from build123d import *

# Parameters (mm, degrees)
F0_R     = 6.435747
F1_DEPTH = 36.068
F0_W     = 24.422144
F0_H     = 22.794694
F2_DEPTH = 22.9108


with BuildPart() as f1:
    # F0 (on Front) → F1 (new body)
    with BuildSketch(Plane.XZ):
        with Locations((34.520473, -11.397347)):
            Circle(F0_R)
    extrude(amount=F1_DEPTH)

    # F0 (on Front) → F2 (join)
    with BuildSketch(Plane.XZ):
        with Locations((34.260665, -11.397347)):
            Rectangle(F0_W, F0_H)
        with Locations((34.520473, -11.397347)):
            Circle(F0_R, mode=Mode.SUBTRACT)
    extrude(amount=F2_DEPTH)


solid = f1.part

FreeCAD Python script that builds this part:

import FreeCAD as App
import Part
import Sketcher


def add_polygon(sketch, points):
    """Adds a closed chain of lines whose ends are joined by coincident constraints."""
    first, n = sketch.GeometryCount, len(points)
    for a, b in zip(points, points[1:] + points[:1]):
        sketch.addGeometry(Part.LineSegment(App.Vector(*a, 0), App.Vector(*b, 0)), False)
    for i in range(n):
        sketch.addConstraint(Sketcher.Constraint("Coincident", first + i, 2, first + (i + 1) % n, 1))

doc = App.newDocument("Part")
params = doc.addObject("Spreadsheet::Sheet", "Params")
for row, (alias, value) in enumerate([
    ("pad1_length", "1.42 in"),
    ("pad2_length", "0.902 in"),
], start=1):
    params.set(f"A{row}", alias)
    params.set(f"B{row}", "=" + value)
    params.setAlias(f"B{row}", alias)

body = doc.addObject("PartDesign::Body", "Body")

# Sketch on XZ plane
sketch1 = doc.addObject("Sketcher::SketchObject", "Sketch")
body.addObject(sketch1)
sketch1.AttachmentSupport = (doc.XZ_Plane, [""])
sketch1.MapMode = "FlatFace"
sketch1.addGeometry(Part.Circle(App.Vector(35, -11, 0), App.Vector(0, 0, 1), 6), False)
sketch1.addConstraint(Sketcher.Constraint("Diameter", 0, 12.871494))
sketch1.addConstraint(Sketcher.Constraint("DistanceX", -1, 1, 0, 3, 34.520473))
sketch1.addConstraint(Sketcher.Constraint("DistanceY", 0, 3, -1, 1, 11.397347))
pad1 = doc.addObject("PartDesign::Pad", "Pad")
body.addObject(pad1)
pad1.Profile = sketch1
pad1.setExpression("Length", "Params.pad1_length")

# Sketch on XZ plane
sketch2 = doc.addObject("Sketcher::SketchObject", "Sketch001")
body.addObject(sketch2)
sketch2.AttachmentSupport = (doc.XZ_Plane, [""])
sketch2.MapMode = "FlatFace"
add_polygon(sketch2, [(22, 0), (22, -23), (46, -23), (46, 0)])  # lines 0-3
sketch2.addGeometry(Part.Circle(App.Vector(35, -11, 0), App.Vector(0, 0, 1), 6), False)  # 4
sketch2.addConstraint(Sketcher.Constraint("Vertical", 0))
sketch2.addConstraint(Sketcher.Constraint("Horizontal", 1))
sketch2.addConstraint(Sketcher.Constraint("Vertical", 2))
sketch2.addConstraint(Sketcher.Constraint("Horizontal", 3))
sketch2.addConstraint(Sketcher.Constraint("PointOnObject", 2, 2, -1))
sketch2.addConstraint(Sketcher.Constraint("Diameter", 4, 12.871494))
sketch2.addConstraint(Sketcher.Constraint("DistanceX", 1, 1, 1, 2, 24.422144))
sketch2.addConstraint(Sketcher.Constraint("DistanceY", 0, 2, 0, 1, 22.794694))
sketch2.addConstraint(Sketcher.Constraint("DistanceX", 0, 2, 4, 3, 12.47088))
sketch2.addConstraint(Sketcher.Constraint("DistanceX", -1, 1, 4, 3, 34.520473))
sketch2.addConstraint(Sketcher.Constraint("DistanceY", 4, 3, -1, 1, 11.397347))
pad2 = doc.addObject("PartDesign::Pad", "Pad001")
body.addObject(pad2)
pad2.Profile = sketch2
pad2.setExpression("Length", "Params.pad2_length")

doc.recompute()
